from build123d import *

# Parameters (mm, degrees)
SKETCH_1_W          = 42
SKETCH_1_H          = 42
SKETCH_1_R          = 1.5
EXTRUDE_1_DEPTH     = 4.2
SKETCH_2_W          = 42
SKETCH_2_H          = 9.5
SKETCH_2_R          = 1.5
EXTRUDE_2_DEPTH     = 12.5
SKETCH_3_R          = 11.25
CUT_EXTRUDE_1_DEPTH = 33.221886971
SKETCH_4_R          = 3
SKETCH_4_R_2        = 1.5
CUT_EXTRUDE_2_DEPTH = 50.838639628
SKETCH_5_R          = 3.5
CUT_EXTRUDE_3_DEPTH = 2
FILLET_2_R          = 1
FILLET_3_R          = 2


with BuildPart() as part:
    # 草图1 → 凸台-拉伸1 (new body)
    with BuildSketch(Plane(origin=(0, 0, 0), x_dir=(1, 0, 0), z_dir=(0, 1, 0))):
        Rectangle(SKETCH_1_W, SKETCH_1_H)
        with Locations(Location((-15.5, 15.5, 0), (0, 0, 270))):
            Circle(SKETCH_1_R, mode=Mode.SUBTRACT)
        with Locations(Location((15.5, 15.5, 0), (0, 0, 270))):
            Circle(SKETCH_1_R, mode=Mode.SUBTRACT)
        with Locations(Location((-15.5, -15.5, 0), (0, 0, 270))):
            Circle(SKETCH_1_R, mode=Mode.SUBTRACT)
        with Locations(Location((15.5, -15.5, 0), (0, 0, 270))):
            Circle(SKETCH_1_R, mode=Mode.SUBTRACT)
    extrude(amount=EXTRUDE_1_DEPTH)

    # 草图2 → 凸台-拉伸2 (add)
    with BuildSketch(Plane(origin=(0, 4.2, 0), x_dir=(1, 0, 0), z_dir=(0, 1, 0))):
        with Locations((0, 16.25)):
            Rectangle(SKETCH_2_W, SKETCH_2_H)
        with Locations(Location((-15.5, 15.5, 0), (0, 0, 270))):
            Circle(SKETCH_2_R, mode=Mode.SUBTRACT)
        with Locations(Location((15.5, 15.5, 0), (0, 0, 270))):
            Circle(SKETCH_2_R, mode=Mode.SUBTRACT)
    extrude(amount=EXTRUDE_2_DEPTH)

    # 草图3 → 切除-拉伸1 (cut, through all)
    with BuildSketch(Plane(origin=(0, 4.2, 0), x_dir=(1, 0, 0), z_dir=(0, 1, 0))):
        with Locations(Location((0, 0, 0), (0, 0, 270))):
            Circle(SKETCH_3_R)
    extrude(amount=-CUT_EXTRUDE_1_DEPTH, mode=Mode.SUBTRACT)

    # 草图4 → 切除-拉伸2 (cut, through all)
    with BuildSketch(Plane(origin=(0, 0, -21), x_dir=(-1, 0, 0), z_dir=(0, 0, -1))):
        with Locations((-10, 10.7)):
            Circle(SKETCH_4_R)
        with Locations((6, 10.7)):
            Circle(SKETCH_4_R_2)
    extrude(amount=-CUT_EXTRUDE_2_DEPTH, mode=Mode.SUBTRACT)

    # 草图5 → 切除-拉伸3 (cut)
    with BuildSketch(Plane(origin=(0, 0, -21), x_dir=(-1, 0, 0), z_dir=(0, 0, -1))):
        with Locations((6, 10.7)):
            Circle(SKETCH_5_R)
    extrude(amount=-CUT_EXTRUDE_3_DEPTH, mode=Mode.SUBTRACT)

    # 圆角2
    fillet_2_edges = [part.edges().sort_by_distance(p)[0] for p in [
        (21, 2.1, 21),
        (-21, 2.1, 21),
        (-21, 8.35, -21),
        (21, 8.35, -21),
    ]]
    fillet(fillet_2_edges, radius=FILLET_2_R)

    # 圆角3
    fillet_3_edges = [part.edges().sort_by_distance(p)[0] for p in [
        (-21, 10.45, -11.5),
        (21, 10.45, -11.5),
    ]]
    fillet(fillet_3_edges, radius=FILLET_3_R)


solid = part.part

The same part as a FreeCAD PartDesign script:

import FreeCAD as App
import Part
import Sketcher

V = App.Vector


def edges_at(feature, points):
    """Names of the edges that pass closest to the given points."""
    edges = feature.Shape.Edges
    near = lambda p: min(range(len(edges)), key=lambda i: edges[i].distToShape(Part.Vertex(*p))[0])
    return sorted({f"Edge{near(p) + 1}" for p in points})

doc = App.newDocument("Part")
body = doc.addObject("PartDesign::Body", "Body")

# Sketch on XZ plane
sketch1 = body.newObject("Sketcher::SketchObject", "Sketch")
sketch1.AttachmentSupport = (doc.getObject("XZ_Plane"), [""])
sketch1.MapMode = "FlatFace"
sketch1.addGeometry([
    Part.LineSegment(V(-21, -21, 0), V(-21, 21, 0)),  # 0
    Part.LineSegment(V(-21, 21, 0), V(21, 21, 0)),  # 1
    Part.LineSegment(V(21, 21, 0), V(21, -21, 0)),  # 2
    Part.LineSegment(V(21, -21, 0), V(-21, -21, 0)),  # 3
    Part.Circle(V(-15.5, 15.5, 0), V(0, 0, 1), 1.5),  # 4
    Part.Circle(V(15.5, 15.5, 0), V(0, 0, 1), 1.5),  # 5
    Part.Circle(V(-15.5, -15.5, 0), V(0, 0, 1), 1.5),  # 6
    Part.Circle(V(15.5, -15.5, 0), V(0, 0, 1), 1.5),  # 7
], False)
sketch1.addConstraint([
    Sketcher.Constraint("Coincident", 0, 2, 1, 1),
    Sketcher.Constraint("Coincident", 1, 2, 2, 1),
    Sketcher.Constraint("Coincident", 2, 2, 3, 1),
    Sketcher.Constraint("Coincident", 3, 2, 0, 1),
    Sketcher.Constraint("Vertical", 0),
    Sketcher.Constraint("Horizontal", 1),
    Sketcher.Constraint("Vertical", 2),
    Sketcher.Constraint("Horizontal", 3),
    Sketcher.Constraint("Equal", 4, 5),
    Sketcher.Constraint("Equal", 5, 6),
    Sketcher.Constraint("Equal", 6, 7),
    Sketcher.Constraint("Symmetric", 5, 3, 6, 3, -1, 1),
    Sketcher.Constraint("Symmetric", 4, 3, 7, 3, -1, 1),
    Sketcher.Constraint("Symmetric", 0, 2, 2, 2, -1, 1),
    Sketcher.Constraint("Symmetric", 4, 3, 5, 3, -2),
    Sketcher.Constraint("Equal", 3, 0),
    Sketcher.Constraint("Diameter", 4, 3.0),
    Sketcher.Constraint("DistanceX", 1, 1, 1, 2, 42.0),
    Sketcher.Constraint("DistanceX", 4, 3, 5, 3, 31.0),
    Sketcher.Constraint("DistanceY", 6, 3, 4, 3, 31.0),
])
pad1 = body.newObject("PartDesign::Pad", "Pad")
pad1.Profile = sketch1
pad1.Length = 4.2
pad1.Reversed = True

# Sketch on XZ plane
sketch2 = body.newObject("Sketcher::SketchObject", "Sketch001")
sketch2.AttachmentSupport = (doc.getObject("XZ_Plane"), [""])
sketch2.MapMode = "FlatFace"
sketch2.AttachmentOffset = App.Placement(V(0, 0, -4.2), App.Rotation())
sketch2.addGeometry([
    Part.LineSegment(V(-21, -21, 0), V(-21, -11.5, 0)),  # 0
    Part.LineSegment(V(-21, -11.5, 0), V(21, -11.5, 0)),  # 1
    Part.LineSegment(V(21, -11.5, 0), V(21, -21, 0)),  # 2
    Part.LineSegment(V(21, -21, 0), V(-21, -21, 0)),  # 3
    Part.Circle(V(-15.5, -15.5, 0), V(0, 0, 1), 1.5),  # 4
    Part.Circle(V(15.5, -15.5, 0), V(0, 0, 1), 1.5),  # 5
], False)
sketch2.addConstraint([
    Sketcher.Constraint("Coincident", 0, 2, 1, 1),
    Sketcher.Constraint("Coincident", 1, 2, 2, 1),
    Sketcher.Constraint("Coincident", 2, 2, 3, 1),
    Sketcher.Constraint("Coincident", 3, 2, 0, 1),
    Sketcher.Constraint("Vertical", 0),
    Sketcher.Constraint("Horizontal", 1),
    Sketcher.Constraint("Vertical", 2),
    Sketcher.Constraint("Horizontal", 3),
    Sketcher.Constraint("Equal", 4, 5),
    Sketcher.Constraint("Symmetric", 4, 3, 5, 3, -2),
    Sketcher.Constraint("Diameter", 4, 3.0),
    Sketcher.Constraint("DistanceX", 1, 1, 1, 2, 42.0),
    Sketcher.Constraint("DistanceY", 0, 1, 0, 2, 9.5),
    Sketcher.Constraint("DistanceX", 0, 2, -1, 1, 21.0),
    Sketcher.Constraint("DistanceY", 2, 2, -1, 1, 21.0),
    Sketcher.Constraint("DistanceX", 4, 3, 5, 3, 31.0),
    Sketcher.Constraint("DistanceY", 4, 3, 0, 2, 4.0),
])
pad2 = body.newObject("PartDesign::Pad", "Pad001")
pad2.Profile = sketch2
pad2.Length = 12.5
pad2.Reversed = True

# Sketch on XZ plane
sketch3 = body.newObject("Sketcher::SketchObject", "Sketch002")
sketch3.AttachmentSupport = (doc.getObject("XZ_Plane"), [""])
sketch3.MapMode = "FlatFace"
sketch3.AttachmentOffset = App.Placement(V(0, 0, -4.2), App.Rotation())
sketch3.addGeometry(Part.Circle(V(0, 0, 0), V(0, 0, 1), 11), False)
sketch3.addConstraint([
    Sketcher.Constraint("Coincident", 0, 3, -1, 1),
    Sketcher.Constraint("Diameter", 0, 22.5),
])
pocket1 = body.newObject("PartDesign::Pocket", "Pocket")
pocket1.Profile = sketch3
pocket1.Type = "ThroughAll"
pocket1.Reversed = True

# Sketch on XY plane
sketch4 = body.newObject("Sketcher::SketchObject", "Sketch003")
sketch4.AttachmentSupport = (doc.getObject("XY_Plane"), [""])
sketch4.MapMode = "FlatFace"
sketch4.AttachmentOffset = App.Placement(V(0, 0, -21), App.Rotation())
sketch4.addGeometry([
    Part.Circle(V(10, 10.7, 0), V(0, 0, 1), 3),
    Part.Circle(V(-6, 10.7, 0), V(0, 0, 1), 1.5),
], False)
sketch4.addConstraint([
    Sketcher.Constraint("Horizontal", 0, 3, 1, 3),
    Sketcher.Constraint("Diameter", 0, 6.0),
    Sketcher.Constraint("Diameter", 1, 3.0),
    Sketcher.Constraint("DistanceX", -1, 1, 0, 3, 10.0),
    Sketcher.Constraint("DistanceX", 1, 3, -1, 1, 6.0),
    Sketcher.Constraint("DistanceY", -1, 1, 0, 3, 10.7),
])
pocket2 = body.newObject("PartDesign::Pocket", "Pocket001")
pocket2.Profile = sketch4
pocket2.Type = "ThroughAll"
pocket2.Reversed = True

# Sketch on XY plane
sketch5 = body.newObject("Sketcher::SketchObject", "Sketch004")
sketch5.AttachmentSupport = (doc.getObject("XY_Plane"), [""])
sketch5.MapMode = "FlatFace"
sketch5.AttachmentOffset = App.Placement(V(0, 0, -21), App.Rotation())
sketch5.addGeometry(Part.Circle(V(-6, 10.7, 0), V(0, 0, 1), 3.5), False)
sketch5.addConstraint([
    Sketcher.Constraint("Diameter", 0, 7.0),
    Sketcher.Constraint("DistanceX", 0, 3, -1, 1, 6.0),
    Sketcher.Constraint("DistanceY", -1, 1, 0, 3, 10.7),
])
pocket3 = body.newObject("PartDesign::Pocket", "Pocket002")
pocket3.Profile = sketch5
pocket3.Length = 2
pocket3.Reversed = True
doc.recompute()

fillet = body.newObject("PartDesign::Fillet", "Fillet")
fillet.Base = (pocket3, edges_at(pocket3, [
    (21, 2.1, 21),
    (-21, 2.1, 21),
    (-21, 8.35, -21),
    (21, 8.35, -21),
]))
fillet.Radius = 1
doc.recompute()

fillet2 = body.newObject("PartDesign::Fillet", "Fillet001")
fillet2.Base = (fillet, edges_at(fillet, [(-21, 10.45, -11.5), (21, 10.45, -11.5)]))
fillet2.Radius = 2

doc.recompute()
